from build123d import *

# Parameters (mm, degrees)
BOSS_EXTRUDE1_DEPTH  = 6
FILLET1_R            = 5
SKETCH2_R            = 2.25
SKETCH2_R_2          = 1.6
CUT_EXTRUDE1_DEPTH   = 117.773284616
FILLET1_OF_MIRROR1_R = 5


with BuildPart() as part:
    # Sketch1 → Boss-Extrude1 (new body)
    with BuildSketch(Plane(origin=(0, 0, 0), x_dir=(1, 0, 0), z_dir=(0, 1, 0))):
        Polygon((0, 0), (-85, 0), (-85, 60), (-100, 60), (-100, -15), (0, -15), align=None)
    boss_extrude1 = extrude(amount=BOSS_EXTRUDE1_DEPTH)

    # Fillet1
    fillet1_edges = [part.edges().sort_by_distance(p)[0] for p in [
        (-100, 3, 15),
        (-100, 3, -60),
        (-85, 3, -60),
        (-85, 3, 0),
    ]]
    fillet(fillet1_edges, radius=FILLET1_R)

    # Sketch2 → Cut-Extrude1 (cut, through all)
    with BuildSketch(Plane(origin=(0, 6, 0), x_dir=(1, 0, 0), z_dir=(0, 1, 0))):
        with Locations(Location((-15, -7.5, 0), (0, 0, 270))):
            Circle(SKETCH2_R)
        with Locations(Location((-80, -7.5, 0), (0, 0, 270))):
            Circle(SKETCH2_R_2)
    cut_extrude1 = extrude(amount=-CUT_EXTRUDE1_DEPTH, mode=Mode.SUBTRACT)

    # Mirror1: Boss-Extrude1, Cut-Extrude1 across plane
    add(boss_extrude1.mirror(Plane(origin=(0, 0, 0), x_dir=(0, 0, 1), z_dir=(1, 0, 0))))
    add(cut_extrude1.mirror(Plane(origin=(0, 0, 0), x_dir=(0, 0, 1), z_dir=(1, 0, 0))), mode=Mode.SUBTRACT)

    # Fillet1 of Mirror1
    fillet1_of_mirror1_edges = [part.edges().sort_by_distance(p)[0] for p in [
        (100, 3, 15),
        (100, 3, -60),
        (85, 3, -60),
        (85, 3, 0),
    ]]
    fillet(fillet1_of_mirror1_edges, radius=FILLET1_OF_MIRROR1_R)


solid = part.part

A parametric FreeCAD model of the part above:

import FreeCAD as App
import Part
import Sketcher
from FreeCAD import Vector
Q = App.Units.Quantity


def edges_at(feature, points):
    """Names of the edges that pass closest to the given points."""
    edges = feature.Shape.Edges
    near = lambda p: min(range(len(edges)), key=lambda i: edges[i].distToShape(Part.Vertex(*p))[0])
    return sorted({f"Edge{near(p) + 1}" for p in points})

doc = App.newDocument("Part")
body = doc.addObject("PartDesign::Body", "Body")

sketch1 = body.newObject("Sketcher::SketchObject", "Sketch")
sketch1.AttachmentSupport = (doc.getObject("XZ_Plane"), [""])
sketch1.MapMode = "FlatFace"
sketch1.addGeometry([
    Part.LineSegment(Vector(0, 0, 0), Vector(-85, 0, 0)),
    Part.LineSegment(Vector(-85, 0, 0), Vector(-85, -60, 0)),
    Part.LineSegment(Vector(-85, -60, 0), Vector(-100, -60, 0)),
    Part.LineSegment(Vector(-100, -60, 0), Vector(-100, 15, 0)),
    Part.LineSegment(Vector(-100, 15, 0), Vector(0, 15, 0)),
    Part.LineSegment(Vector(0, 15, 0), Vector(0, 0, 0)),
], False)
sketch1.addConstraint([
    Sketcher.Constraint("Coincident", 0, 2, 1, 1),
    Sketcher.Constraint("Coincident", 1, 2, 2, 1),
    Sketcher.Constraint("Coincident", 2, 2, 3, 1),
    Sketcher.Constraint("Coincident", 3, 2, 4, 1),
    Sketcher.Constraint("Coincident", 4, 2, 5, 1),
    Sketcher.Constraint("Coincident", 5, 2, 0, 1),
    Sketcher.Constraint("Horizontal", 0),
    Sketcher.Constraint("Vertical", 1),
    Sketcher.Constraint("Horizontal", 2),
    Sketcher.Constraint("Vertical", 3),
    Sketcher.Constraint("Horizontal", 4),
    Sketcher.Constraint("Vertical", 5),
    Sketcher.Constraint("Coincident", 5, 2, -1, 1),
    Sketcher.Constraint("Equal", 2, 5),
    Sketcher.Constraint("DistanceX", 0, 2, 0, 1, Q("85 mm")),
    Sketcher.Constraint("DistanceX", 2, 2, 2, 1, Q("15 mm")),
    Sketcher.Constraint("DistanceY", 1, 2, 1, 1, Q("60 mm")),
])
pad1 = body.newObject("PartDesign::Pad", "Pad")
pad1.Profile = sketch1
pad1.Length = 6
pad1.Reversed = True
doc.recompute()

fillet = body.newObject("PartDesign::Fillet", "Fillet")
fillet.Base = (pad1, edges_at(pad1, [
    (-100, 3, 15),
    (-100, 3, -60),
    (-85, 3, -60),
    (-85, 3, 0),
]))
fillet.Radius = 5

sketch2 = body.newObject("Sketcher::SketchObject", "Sketch001")
sketch2.AttachmentSupport = (doc.getObject("XZ_Plane"), [""])
sketch2.MapMode = "FlatFace"
sketch2.AttachmentOffset = App.Placement(Vector(0, 0, -6), App.Rotation())
sketch2.addGeometry([
    Part.Circle(Vector(-15, 7.5, 0), Vector(0, 0, 1), 2.2),
    Part.Circle(Vector(-80, 7.5, 0), Vector(0, 0, 1), 1.6),
], False)
sketch2.addConstraint([
    Sketcher.Constraint("Horizontal", 0, 3, 1, 3),
    Sketcher.Constraint("Diameter", 0, Q("4.5 mm")),
    Sketcher.Constraint("Diameter", 1, Q("3.2 mm")),
    Sketcher.Constraint("DistanceX", 0, 3, -1, 1, Q("15 mm")),
    Sketcher.Constraint("DistanceX", 1, 3, -1, 1, Q("80 mm")),
    Sketcher.Constraint("DistanceY", -1, 1, 0, 3, Q("7.5 mm")),
])
pocket1 = body.newObject("PartDesign::Pocket", "Pocket")
pocket1.Profile = sketch2
pocket1.Type = "ThroughAll"
pocket1.Reversed = True
doc.recompute()

mirrored = body.newObject("PartDesign::Mirrored", "Mirrored")
mirrored.Originals = [pad1, pocket1]
mirrored.MirrorPlane = (doc.getObject("YZ_Plane"), [""])
body.Tip = mirrored
doc.recompute()

fillet2 = body.newObject("PartDesign::Fillet", "Fillet001")
fillet2.Base = (mirrored, edges_at(mirrored, [
    (100, 3, 15),
    (100, 3, -60),
    (85, 3, -60),
    (85, 3, 0),
]))
fillet2.Radius = 5

doc.recompute()
